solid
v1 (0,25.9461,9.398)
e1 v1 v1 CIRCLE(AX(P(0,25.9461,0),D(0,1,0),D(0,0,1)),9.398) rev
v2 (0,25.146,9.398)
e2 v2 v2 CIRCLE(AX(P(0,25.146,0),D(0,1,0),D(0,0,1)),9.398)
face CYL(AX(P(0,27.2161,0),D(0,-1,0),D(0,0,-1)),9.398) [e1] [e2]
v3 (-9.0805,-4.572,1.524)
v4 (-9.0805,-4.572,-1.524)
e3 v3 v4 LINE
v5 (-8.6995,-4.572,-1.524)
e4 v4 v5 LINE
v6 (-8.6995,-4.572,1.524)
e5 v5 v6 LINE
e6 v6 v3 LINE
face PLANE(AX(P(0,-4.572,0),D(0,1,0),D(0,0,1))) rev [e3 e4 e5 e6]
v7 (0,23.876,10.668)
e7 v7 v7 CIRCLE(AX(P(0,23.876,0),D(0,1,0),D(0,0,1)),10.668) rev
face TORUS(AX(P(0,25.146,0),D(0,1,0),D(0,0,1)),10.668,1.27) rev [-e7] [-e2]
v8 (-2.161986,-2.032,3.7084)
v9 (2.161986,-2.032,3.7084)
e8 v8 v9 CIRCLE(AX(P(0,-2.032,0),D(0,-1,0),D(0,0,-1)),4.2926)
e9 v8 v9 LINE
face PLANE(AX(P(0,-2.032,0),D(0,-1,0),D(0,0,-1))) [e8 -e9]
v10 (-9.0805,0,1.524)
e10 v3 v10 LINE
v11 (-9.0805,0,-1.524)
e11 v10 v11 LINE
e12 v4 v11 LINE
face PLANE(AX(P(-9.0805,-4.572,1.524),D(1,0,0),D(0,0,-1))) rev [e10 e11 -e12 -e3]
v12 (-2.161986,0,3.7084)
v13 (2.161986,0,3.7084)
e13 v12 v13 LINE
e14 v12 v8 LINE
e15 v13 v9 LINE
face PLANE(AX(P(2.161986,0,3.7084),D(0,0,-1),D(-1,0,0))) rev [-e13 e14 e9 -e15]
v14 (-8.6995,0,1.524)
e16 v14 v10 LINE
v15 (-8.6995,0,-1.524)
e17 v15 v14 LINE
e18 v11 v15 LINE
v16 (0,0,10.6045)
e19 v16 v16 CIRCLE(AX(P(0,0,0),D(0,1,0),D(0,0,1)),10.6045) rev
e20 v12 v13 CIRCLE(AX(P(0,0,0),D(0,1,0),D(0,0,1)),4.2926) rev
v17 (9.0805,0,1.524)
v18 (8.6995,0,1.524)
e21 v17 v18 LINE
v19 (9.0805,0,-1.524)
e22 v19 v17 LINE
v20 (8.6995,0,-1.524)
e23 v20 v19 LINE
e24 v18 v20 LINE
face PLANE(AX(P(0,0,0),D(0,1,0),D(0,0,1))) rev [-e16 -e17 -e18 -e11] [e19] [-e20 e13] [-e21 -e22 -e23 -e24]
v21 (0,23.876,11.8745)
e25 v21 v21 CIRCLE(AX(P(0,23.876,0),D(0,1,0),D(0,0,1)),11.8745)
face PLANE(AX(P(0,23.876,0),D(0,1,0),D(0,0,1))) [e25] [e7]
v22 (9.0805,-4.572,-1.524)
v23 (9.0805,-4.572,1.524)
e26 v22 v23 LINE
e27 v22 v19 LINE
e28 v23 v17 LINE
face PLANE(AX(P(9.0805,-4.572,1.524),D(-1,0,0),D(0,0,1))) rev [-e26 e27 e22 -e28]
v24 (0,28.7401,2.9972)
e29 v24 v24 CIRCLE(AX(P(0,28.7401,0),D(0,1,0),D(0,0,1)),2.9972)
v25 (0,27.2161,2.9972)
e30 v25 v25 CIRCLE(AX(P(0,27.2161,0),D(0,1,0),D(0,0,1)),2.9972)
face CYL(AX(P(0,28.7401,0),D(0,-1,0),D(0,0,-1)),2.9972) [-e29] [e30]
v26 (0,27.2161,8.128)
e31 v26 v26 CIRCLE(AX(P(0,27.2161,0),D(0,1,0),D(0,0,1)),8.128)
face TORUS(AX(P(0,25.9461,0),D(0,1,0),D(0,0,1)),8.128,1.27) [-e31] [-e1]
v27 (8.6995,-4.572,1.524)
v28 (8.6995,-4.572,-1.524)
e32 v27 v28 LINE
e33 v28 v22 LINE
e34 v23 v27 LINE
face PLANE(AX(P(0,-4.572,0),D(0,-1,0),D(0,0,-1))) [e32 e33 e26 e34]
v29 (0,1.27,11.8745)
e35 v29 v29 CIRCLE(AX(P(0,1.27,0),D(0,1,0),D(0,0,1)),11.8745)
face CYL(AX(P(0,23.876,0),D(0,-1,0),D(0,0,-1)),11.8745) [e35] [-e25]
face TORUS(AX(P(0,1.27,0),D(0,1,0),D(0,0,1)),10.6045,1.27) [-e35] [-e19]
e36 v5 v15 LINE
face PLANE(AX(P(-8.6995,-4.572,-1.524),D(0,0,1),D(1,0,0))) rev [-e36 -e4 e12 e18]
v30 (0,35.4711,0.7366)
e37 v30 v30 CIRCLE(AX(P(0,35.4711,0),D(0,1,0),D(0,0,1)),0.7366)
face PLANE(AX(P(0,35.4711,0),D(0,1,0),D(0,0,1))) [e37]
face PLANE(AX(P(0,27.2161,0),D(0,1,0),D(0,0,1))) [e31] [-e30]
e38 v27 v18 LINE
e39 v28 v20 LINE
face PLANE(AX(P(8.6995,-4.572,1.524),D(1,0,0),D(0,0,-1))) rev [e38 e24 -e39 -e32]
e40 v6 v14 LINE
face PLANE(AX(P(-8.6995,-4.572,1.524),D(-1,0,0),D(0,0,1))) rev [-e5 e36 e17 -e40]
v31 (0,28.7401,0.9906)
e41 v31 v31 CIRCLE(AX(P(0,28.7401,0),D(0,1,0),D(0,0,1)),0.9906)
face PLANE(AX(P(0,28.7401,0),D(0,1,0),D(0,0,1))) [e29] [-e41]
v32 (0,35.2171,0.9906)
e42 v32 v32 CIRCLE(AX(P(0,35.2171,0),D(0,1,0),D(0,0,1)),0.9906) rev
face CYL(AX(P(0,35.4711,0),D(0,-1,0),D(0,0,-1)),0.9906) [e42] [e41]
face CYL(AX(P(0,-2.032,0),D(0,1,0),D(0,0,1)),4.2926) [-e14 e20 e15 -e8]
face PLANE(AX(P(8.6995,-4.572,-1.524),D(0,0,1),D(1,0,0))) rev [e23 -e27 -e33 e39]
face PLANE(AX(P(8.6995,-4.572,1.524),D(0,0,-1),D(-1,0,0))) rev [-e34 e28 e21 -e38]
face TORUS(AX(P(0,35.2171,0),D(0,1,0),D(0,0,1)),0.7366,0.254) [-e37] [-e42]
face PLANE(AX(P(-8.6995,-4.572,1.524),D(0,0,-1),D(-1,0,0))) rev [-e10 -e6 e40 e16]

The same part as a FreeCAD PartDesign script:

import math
import FreeCAD as App
import Part
import Sketcher
Q = App.Units.Quantity


def edges_at(feature, points):
    """Names of the edges that pass closest to the given points."""
    edges = feature.Shape.Edges
    near = lambda p: min(range(len(edges)), key=lambda i: edges[i].distToShape(Part.Vertex(*p))[0])
    return sorted({f"Edge{near(p) + 1}" for p in points})

doc = App.newDocument("Part")
params = doc.addObject("Spreadsheet::Sheet", "Params")
for row, (alias, value) in enumerate([
    ("sketch1_diameter", "0.935 in"),
    ("pad1_length", "0.94 in"),
    ("sketch2_diameter", "0.74 in"),
    ("pad2_length", "0.1315 in"),
    ("sketch3_diameter", "0.236 in"),
    ("pad3_length", "0.06 in"),
    ("sketch4_diameter", "0.078 in"),
    ("pad4_length", "0.265 in"),
    ("sketch5_diameter", "0.338 in"),
    ("pad5_length", "0.08 in"),
    ("sketch6_radius", "0.169 in"),
    ("pocket1_length", "0.08 in"),
    ("sketch7_height", "0.12 in"),
    ("sketch7_width", "0.015 in"),
    ("pad6_length", "0.18 in"),
    ("fillet_radius", "0.05 in"),
    ("fillet2_radius", "0.01 in"),
], start=1):
    params.set(f"A{row}", alias)
    params.set(f"B{row}", "=" + value)
    params.setAlias(f"B{row}", alias)

body = doc.addObject("PartDesign::Body", "Body")

sketch1 = body.newObject("Sketcher::SketchObject", "Sketch")
sketch1.AttachmentSupport = (doc.getObject("XZ_Plane"), [""])
sketch1.MapMode = "FlatFace"
sketch1.addGeometry(Part.Circle(App.Vector(0, 0, 0), App.Vector(0, 0, 1), 12), False)
sketch1.addConstraint(Sketcher.Constraint("Coincident", 0, 3, -1, 1))
sketch1.addConstraint(Sketcher.Constraint("Diameter", 0, Q("0.935 in")))
sketch1.setExpression("Constraints[1]", "Params.sketch1_diameter")
pad1 = body.newObject("PartDesign::Pad", "Pad")
pad1.Profile = sketch1
pad1.setExpression("Length", "Params.pad1_length")
pad1.Reversed = True

sketch2 = body.newObject("Sketcher::SketchObject", "Sketch001")
sketch2.AttachmentSupport = (doc.getObject("XZ_Plane"), [""])
sketch2.MapMode = "FlatFace"
sketch2.AttachmentOffset = App.Placement(App.Vector(0, 0, -0.94 * 25.4), App.Rotation())
sketch2.addGeometry(Part.Circle(App.Vector(0, 0, 0), App.Vector(0, 0, 1), 9), False)
sketch2.addConstraint(Sketcher.Constraint("Coincident", 0, 3, -1, 1))
sketch2.addConstraint(Sketcher.Constraint("Diameter", 0, Q("0.74 in")))
sketch2.setExpression("Constraints[1]", "Params.sketch2_diameter")
pad2 = body.newObject("PartDesign::Pad", "Pad001")
pad2.Profile = sketch2
pad2.setExpression("Length", "Params.pad2_length")
pad2.Reversed = True

sketch3 = body.newObject("Sketcher::SketchObject", "Sketch002")
sketch3.AttachmentSupport = (doc.getObject("XZ_Plane"), [""])
sketch3.MapMode = "FlatFace"
sketch3.AttachmentOffset = App.Placement(App.Vector(0, 0, -1.0715 * 25.4), App.Rotation())
sketch3.addGeometry(Part.Circle(App.Vector(0, 0, 0), App.Vector(0, 0, 1), 3), False)
sketch3.addConstraint(Sketcher.Constraint("Coincident", 0, 3, -1, 1))
sketch3.addConstraint(Sketcher.Constraint("Diameter", 0, Q("0.236 in")))
sketch3.setExpression("Constraints[1]", "Params.sketch3_diameter")
pad3 = body.newObject("PartDesign::Pad", "Pad002")
pad3.Profile = sketch3
pad3.setExpression("Length", "Params.pad3_length")
pad3.Reversed = True

sketch4 = body.newObject("Sketcher::SketchObject", "Sketch003")
sketch4.AttachmentSupport = (doc.getObject("XZ_Plane"), [""])
sketch4.MapMode = "FlatFace"
sketch4.AttachmentOffset = App.Placement(App.Vector(0, 0, -1.1315 * 25.4), App.Rotation())
sketch4.addGeometry(Part.Circle(App.Vector(0, 0, 0), App.Vector(0, 0, 1), 1), False)
sketch4.addConstraint(Sketcher.Constraint("Coincident", 0, 3, -1, 1))
sketch4.addConstraint(Sketcher.Constraint("Diameter", 0, Q("0.078 in")))
sketch4.setExpression("Constraints[1]", "Params.sketch4_diameter")
pad4 = body.newObject("PartDesign::Pad", "Pad003")
pad4.Profile = sketch4
pad4.setExpression("Length", "Params.pad4_length")
pad4.Reversed = True

sketch5 = body.newObject("Sketcher::SketchObject", "Sketch004")
sketch5.AttachmentSupport = (doc.getObject("XZ_Plane"), [""])
sketch5.MapMode = "FlatFace"
sketch5.addGeometry(Part.Circle(App.Vector(0, 0, 0), App.Vector(0, 0, 1), 4.3), False)
sketch5.addConstraint(Sketcher.Constraint("Coincident", 0, 3, -1, 1))
sketch5.addConstraint(Sketcher.Constraint("Diameter", 0, Q("0.338 in")))
sketch5.setExpression("Constraints[1]", "Params.sketch5_diameter")
pad5 = body.newObject("PartDesign::Pad", "Pad004")
pad5.Profile = sketch5
pad5.setExpression("Length", "Params.pad5_length")

sketch6 = body.newObject("Sketcher::SketchObject", "Sketch005")
sketch6.AttachmentSupport = (doc.getObject("XZ_Plane"), [""])
sketch6.MapMode = "FlatFace"
sketch6.AttachmentOffset = App.Placement(App.Vector(0, 0, 0.08 * 25.4), App.Rotation())
sketch6.addGeometry(Part.LineSegment(App.Vector(-2.2, 3.7, 0), App.Vector(2.2, 3.7, 0)), False)
sketch6.addGeometry(Part.ArcOfCircle(Part.Circle(App.Vector(0, 0, 0), App.Vector(0, 0, 1), 4.3), math.radians(60), math.radians(120)), False)
sketch6.addConstraint(Sketcher.Constraint("Coincident", 0, 1, 1, 2))
sketch6.addConstraint(Sketcher.Constraint("Coincident", 1, 1, 0, 2))
sketch6.addConstraint(Sketcher.Constraint("Horizontal", 0))
sketch6.addConstraint(Sketcher.Constraint("Coincident", 1, 3, -1, 1))
sketch6.addConstraint(Sketcher.Constraint("Radius", 1, Q("0.169 in")))
sketch6.addConstraint(Sketcher.Constraint("DistanceY", -1, 1, 0, 1, Q("0.146 in")))
sketch6.setExpression("Constraints[4]", "Params.sketch6_radius")
pocket1 = body.newObject("PartDesign::Pocket", "Pocket")
pocket1.Profile = sketch6
pocket1.setExpression("Length", "Params.pocket1_length")

sketch7 = body.newObject("Sketcher::SketchObject", "Sketch006")
sketch7.AttachmentSupport = (doc.getObject("XZ_Plane"), [""])
sketch7.MapMode = "FlatFace"
sketch7.addGeometry(Part.LineSegment(App.Vector(-9.08, 1.52, 0), App.Vector(-9.08, -1.52, 0)), False)
sketch7.addGeometry(Part.LineSegment(App.Vector(-9.08, -1.52, 0), App.Vector(-8.7, -1.52, 0)), False)
sketch7.addGeometry(Part.LineSegment(App.Vector(-8.7, -1.52, 0), App.Vector(-8.7, 1.52, 0)), False)
sketch7.addGeometry(Part.LineSegment(App.Vector(-8.7, 1.52, 0), App.Vector(-9.08, 1.52, 0)), False)
sketch7.addGeometry(Part.LineSegment(App.Vector(8.7, 1.52, 0), App.Vector(8.7, -1.52, 0)), False)
sketch7.addGeometry(Part.LineSegment(App.Vector(8.7, -1.52, 0), App.Vector(9.08, -1.52, 0)), False)
sketch7.addGeometry(Part.LineSegment(App.Vector(9.08, -1.52, 0), App.Vector(9.08, 1.52, 0)), False)
sketch7.addGeometry(Part.LineSegment(App.Vector(9.08, 1.52, 0), App.Vector(8.7, 1.52, 0)), False)
sketch7.addConstraint(Sketcher.Constraint("Coincident", 0, 2, 1, 1))
sketch7.addConstraint(Sketcher.Constraint("Coincident", 1, 2, 2, 1))
sketch7.addConstraint(Sketcher.Constraint("Coincident", 2, 2, 3, 1))
sketch7.addConstraint(Sketcher.Constraint("Coincident", 3, 2, 0, 1))
sketch7.addConstraint(Sketcher.Constraint("Coincident", 4, 2, 5, 1))
sketch7.addConstraint(Sketcher.Constraint("Coincident", 5, 2, 6, 1))
sketch7.addConstraint(Sketcher.Constraint("Coincident", 6, 2, 7, 1))
sketch7.addConstraint(Sketcher.Constraint("Coincident", 7, 2, 4, 1))
sketch7.addConstraint(Sketcher.Constraint("Vertical", 0))
sketch7.addConstraint(Sketcher.Constraint("Horizontal", 1))
sketch7.addConstraint(Sketcher.Constraint("Vertical", 2))
sketch7.addConstraint(Sketcher.Constraint("Horizontal", 3))
sketch7.addConstraint(Sketcher.Constraint("Vertical", 4))
sketch7.addConstraint(Sketcher.Constraint("Horizontal", 5))
sketch7.addConstraint(Sketcher.Constraint("Vertical", 6))
sketch7.addConstraint(Sketcher.Constraint("Horizontal", 7))
sketch7.addConstraint(Sketcher.Constraint("Symmetric", 2, 2, 4, 2, -1, 1))
sketch7.addConstraint(Sketcher.Constraint("Symmetric", 0, 2, 6, 2, -1, 1))
sketch7.addConstraint(Sketcher.Constraint("Horizontal", 1, 2, 4, 2))
sketch7.addConstraint(Sketcher.Constraint("DistanceY", 0, 2, 0, 1, Q("0.12 in")))
sketch7.addConstraint(Sketcher.Constraint("DistanceX", 0, 2, 4, 2, Q("0.7 in")))
sketch7.addConstraint(Sketcher.Constraint("DistanceX", 1, 1, 1, 2, Q("0.015 in")))
sketch7.setExpression("Constraints[19]", "Params.sketch7_height")
sketch7.setExpression("Constraints[21]", "Params.sketch7_width")
pad6 = body.newObject("PartDesign::Pad", "Pad005")
pad6.Profile = sketch7
pad6.setExpression("Length", "Params.pad6_length")
doc.recompute()

fillet = body.newObject("PartDesign::Fillet", "Fillet")
fillet.Base = (pad6, edges_at(pad6, [(-11.874, 0, 0), (-9.398, 23.876, 0), (-9.398, 27.216, 0)]))
fillet.setExpression("Radius", "Params.fillet_radius")
doc.recompute()

fillet2 = body.newObject("PartDesign::Fillet", "Fillet001")
fillet2.Base = (fillet, edges_at(fillet, [(-0.991, 35.471, 0)]))
fillet2.setExpression("Radius", "Params.fillet2_radius")

doc.recompute()
